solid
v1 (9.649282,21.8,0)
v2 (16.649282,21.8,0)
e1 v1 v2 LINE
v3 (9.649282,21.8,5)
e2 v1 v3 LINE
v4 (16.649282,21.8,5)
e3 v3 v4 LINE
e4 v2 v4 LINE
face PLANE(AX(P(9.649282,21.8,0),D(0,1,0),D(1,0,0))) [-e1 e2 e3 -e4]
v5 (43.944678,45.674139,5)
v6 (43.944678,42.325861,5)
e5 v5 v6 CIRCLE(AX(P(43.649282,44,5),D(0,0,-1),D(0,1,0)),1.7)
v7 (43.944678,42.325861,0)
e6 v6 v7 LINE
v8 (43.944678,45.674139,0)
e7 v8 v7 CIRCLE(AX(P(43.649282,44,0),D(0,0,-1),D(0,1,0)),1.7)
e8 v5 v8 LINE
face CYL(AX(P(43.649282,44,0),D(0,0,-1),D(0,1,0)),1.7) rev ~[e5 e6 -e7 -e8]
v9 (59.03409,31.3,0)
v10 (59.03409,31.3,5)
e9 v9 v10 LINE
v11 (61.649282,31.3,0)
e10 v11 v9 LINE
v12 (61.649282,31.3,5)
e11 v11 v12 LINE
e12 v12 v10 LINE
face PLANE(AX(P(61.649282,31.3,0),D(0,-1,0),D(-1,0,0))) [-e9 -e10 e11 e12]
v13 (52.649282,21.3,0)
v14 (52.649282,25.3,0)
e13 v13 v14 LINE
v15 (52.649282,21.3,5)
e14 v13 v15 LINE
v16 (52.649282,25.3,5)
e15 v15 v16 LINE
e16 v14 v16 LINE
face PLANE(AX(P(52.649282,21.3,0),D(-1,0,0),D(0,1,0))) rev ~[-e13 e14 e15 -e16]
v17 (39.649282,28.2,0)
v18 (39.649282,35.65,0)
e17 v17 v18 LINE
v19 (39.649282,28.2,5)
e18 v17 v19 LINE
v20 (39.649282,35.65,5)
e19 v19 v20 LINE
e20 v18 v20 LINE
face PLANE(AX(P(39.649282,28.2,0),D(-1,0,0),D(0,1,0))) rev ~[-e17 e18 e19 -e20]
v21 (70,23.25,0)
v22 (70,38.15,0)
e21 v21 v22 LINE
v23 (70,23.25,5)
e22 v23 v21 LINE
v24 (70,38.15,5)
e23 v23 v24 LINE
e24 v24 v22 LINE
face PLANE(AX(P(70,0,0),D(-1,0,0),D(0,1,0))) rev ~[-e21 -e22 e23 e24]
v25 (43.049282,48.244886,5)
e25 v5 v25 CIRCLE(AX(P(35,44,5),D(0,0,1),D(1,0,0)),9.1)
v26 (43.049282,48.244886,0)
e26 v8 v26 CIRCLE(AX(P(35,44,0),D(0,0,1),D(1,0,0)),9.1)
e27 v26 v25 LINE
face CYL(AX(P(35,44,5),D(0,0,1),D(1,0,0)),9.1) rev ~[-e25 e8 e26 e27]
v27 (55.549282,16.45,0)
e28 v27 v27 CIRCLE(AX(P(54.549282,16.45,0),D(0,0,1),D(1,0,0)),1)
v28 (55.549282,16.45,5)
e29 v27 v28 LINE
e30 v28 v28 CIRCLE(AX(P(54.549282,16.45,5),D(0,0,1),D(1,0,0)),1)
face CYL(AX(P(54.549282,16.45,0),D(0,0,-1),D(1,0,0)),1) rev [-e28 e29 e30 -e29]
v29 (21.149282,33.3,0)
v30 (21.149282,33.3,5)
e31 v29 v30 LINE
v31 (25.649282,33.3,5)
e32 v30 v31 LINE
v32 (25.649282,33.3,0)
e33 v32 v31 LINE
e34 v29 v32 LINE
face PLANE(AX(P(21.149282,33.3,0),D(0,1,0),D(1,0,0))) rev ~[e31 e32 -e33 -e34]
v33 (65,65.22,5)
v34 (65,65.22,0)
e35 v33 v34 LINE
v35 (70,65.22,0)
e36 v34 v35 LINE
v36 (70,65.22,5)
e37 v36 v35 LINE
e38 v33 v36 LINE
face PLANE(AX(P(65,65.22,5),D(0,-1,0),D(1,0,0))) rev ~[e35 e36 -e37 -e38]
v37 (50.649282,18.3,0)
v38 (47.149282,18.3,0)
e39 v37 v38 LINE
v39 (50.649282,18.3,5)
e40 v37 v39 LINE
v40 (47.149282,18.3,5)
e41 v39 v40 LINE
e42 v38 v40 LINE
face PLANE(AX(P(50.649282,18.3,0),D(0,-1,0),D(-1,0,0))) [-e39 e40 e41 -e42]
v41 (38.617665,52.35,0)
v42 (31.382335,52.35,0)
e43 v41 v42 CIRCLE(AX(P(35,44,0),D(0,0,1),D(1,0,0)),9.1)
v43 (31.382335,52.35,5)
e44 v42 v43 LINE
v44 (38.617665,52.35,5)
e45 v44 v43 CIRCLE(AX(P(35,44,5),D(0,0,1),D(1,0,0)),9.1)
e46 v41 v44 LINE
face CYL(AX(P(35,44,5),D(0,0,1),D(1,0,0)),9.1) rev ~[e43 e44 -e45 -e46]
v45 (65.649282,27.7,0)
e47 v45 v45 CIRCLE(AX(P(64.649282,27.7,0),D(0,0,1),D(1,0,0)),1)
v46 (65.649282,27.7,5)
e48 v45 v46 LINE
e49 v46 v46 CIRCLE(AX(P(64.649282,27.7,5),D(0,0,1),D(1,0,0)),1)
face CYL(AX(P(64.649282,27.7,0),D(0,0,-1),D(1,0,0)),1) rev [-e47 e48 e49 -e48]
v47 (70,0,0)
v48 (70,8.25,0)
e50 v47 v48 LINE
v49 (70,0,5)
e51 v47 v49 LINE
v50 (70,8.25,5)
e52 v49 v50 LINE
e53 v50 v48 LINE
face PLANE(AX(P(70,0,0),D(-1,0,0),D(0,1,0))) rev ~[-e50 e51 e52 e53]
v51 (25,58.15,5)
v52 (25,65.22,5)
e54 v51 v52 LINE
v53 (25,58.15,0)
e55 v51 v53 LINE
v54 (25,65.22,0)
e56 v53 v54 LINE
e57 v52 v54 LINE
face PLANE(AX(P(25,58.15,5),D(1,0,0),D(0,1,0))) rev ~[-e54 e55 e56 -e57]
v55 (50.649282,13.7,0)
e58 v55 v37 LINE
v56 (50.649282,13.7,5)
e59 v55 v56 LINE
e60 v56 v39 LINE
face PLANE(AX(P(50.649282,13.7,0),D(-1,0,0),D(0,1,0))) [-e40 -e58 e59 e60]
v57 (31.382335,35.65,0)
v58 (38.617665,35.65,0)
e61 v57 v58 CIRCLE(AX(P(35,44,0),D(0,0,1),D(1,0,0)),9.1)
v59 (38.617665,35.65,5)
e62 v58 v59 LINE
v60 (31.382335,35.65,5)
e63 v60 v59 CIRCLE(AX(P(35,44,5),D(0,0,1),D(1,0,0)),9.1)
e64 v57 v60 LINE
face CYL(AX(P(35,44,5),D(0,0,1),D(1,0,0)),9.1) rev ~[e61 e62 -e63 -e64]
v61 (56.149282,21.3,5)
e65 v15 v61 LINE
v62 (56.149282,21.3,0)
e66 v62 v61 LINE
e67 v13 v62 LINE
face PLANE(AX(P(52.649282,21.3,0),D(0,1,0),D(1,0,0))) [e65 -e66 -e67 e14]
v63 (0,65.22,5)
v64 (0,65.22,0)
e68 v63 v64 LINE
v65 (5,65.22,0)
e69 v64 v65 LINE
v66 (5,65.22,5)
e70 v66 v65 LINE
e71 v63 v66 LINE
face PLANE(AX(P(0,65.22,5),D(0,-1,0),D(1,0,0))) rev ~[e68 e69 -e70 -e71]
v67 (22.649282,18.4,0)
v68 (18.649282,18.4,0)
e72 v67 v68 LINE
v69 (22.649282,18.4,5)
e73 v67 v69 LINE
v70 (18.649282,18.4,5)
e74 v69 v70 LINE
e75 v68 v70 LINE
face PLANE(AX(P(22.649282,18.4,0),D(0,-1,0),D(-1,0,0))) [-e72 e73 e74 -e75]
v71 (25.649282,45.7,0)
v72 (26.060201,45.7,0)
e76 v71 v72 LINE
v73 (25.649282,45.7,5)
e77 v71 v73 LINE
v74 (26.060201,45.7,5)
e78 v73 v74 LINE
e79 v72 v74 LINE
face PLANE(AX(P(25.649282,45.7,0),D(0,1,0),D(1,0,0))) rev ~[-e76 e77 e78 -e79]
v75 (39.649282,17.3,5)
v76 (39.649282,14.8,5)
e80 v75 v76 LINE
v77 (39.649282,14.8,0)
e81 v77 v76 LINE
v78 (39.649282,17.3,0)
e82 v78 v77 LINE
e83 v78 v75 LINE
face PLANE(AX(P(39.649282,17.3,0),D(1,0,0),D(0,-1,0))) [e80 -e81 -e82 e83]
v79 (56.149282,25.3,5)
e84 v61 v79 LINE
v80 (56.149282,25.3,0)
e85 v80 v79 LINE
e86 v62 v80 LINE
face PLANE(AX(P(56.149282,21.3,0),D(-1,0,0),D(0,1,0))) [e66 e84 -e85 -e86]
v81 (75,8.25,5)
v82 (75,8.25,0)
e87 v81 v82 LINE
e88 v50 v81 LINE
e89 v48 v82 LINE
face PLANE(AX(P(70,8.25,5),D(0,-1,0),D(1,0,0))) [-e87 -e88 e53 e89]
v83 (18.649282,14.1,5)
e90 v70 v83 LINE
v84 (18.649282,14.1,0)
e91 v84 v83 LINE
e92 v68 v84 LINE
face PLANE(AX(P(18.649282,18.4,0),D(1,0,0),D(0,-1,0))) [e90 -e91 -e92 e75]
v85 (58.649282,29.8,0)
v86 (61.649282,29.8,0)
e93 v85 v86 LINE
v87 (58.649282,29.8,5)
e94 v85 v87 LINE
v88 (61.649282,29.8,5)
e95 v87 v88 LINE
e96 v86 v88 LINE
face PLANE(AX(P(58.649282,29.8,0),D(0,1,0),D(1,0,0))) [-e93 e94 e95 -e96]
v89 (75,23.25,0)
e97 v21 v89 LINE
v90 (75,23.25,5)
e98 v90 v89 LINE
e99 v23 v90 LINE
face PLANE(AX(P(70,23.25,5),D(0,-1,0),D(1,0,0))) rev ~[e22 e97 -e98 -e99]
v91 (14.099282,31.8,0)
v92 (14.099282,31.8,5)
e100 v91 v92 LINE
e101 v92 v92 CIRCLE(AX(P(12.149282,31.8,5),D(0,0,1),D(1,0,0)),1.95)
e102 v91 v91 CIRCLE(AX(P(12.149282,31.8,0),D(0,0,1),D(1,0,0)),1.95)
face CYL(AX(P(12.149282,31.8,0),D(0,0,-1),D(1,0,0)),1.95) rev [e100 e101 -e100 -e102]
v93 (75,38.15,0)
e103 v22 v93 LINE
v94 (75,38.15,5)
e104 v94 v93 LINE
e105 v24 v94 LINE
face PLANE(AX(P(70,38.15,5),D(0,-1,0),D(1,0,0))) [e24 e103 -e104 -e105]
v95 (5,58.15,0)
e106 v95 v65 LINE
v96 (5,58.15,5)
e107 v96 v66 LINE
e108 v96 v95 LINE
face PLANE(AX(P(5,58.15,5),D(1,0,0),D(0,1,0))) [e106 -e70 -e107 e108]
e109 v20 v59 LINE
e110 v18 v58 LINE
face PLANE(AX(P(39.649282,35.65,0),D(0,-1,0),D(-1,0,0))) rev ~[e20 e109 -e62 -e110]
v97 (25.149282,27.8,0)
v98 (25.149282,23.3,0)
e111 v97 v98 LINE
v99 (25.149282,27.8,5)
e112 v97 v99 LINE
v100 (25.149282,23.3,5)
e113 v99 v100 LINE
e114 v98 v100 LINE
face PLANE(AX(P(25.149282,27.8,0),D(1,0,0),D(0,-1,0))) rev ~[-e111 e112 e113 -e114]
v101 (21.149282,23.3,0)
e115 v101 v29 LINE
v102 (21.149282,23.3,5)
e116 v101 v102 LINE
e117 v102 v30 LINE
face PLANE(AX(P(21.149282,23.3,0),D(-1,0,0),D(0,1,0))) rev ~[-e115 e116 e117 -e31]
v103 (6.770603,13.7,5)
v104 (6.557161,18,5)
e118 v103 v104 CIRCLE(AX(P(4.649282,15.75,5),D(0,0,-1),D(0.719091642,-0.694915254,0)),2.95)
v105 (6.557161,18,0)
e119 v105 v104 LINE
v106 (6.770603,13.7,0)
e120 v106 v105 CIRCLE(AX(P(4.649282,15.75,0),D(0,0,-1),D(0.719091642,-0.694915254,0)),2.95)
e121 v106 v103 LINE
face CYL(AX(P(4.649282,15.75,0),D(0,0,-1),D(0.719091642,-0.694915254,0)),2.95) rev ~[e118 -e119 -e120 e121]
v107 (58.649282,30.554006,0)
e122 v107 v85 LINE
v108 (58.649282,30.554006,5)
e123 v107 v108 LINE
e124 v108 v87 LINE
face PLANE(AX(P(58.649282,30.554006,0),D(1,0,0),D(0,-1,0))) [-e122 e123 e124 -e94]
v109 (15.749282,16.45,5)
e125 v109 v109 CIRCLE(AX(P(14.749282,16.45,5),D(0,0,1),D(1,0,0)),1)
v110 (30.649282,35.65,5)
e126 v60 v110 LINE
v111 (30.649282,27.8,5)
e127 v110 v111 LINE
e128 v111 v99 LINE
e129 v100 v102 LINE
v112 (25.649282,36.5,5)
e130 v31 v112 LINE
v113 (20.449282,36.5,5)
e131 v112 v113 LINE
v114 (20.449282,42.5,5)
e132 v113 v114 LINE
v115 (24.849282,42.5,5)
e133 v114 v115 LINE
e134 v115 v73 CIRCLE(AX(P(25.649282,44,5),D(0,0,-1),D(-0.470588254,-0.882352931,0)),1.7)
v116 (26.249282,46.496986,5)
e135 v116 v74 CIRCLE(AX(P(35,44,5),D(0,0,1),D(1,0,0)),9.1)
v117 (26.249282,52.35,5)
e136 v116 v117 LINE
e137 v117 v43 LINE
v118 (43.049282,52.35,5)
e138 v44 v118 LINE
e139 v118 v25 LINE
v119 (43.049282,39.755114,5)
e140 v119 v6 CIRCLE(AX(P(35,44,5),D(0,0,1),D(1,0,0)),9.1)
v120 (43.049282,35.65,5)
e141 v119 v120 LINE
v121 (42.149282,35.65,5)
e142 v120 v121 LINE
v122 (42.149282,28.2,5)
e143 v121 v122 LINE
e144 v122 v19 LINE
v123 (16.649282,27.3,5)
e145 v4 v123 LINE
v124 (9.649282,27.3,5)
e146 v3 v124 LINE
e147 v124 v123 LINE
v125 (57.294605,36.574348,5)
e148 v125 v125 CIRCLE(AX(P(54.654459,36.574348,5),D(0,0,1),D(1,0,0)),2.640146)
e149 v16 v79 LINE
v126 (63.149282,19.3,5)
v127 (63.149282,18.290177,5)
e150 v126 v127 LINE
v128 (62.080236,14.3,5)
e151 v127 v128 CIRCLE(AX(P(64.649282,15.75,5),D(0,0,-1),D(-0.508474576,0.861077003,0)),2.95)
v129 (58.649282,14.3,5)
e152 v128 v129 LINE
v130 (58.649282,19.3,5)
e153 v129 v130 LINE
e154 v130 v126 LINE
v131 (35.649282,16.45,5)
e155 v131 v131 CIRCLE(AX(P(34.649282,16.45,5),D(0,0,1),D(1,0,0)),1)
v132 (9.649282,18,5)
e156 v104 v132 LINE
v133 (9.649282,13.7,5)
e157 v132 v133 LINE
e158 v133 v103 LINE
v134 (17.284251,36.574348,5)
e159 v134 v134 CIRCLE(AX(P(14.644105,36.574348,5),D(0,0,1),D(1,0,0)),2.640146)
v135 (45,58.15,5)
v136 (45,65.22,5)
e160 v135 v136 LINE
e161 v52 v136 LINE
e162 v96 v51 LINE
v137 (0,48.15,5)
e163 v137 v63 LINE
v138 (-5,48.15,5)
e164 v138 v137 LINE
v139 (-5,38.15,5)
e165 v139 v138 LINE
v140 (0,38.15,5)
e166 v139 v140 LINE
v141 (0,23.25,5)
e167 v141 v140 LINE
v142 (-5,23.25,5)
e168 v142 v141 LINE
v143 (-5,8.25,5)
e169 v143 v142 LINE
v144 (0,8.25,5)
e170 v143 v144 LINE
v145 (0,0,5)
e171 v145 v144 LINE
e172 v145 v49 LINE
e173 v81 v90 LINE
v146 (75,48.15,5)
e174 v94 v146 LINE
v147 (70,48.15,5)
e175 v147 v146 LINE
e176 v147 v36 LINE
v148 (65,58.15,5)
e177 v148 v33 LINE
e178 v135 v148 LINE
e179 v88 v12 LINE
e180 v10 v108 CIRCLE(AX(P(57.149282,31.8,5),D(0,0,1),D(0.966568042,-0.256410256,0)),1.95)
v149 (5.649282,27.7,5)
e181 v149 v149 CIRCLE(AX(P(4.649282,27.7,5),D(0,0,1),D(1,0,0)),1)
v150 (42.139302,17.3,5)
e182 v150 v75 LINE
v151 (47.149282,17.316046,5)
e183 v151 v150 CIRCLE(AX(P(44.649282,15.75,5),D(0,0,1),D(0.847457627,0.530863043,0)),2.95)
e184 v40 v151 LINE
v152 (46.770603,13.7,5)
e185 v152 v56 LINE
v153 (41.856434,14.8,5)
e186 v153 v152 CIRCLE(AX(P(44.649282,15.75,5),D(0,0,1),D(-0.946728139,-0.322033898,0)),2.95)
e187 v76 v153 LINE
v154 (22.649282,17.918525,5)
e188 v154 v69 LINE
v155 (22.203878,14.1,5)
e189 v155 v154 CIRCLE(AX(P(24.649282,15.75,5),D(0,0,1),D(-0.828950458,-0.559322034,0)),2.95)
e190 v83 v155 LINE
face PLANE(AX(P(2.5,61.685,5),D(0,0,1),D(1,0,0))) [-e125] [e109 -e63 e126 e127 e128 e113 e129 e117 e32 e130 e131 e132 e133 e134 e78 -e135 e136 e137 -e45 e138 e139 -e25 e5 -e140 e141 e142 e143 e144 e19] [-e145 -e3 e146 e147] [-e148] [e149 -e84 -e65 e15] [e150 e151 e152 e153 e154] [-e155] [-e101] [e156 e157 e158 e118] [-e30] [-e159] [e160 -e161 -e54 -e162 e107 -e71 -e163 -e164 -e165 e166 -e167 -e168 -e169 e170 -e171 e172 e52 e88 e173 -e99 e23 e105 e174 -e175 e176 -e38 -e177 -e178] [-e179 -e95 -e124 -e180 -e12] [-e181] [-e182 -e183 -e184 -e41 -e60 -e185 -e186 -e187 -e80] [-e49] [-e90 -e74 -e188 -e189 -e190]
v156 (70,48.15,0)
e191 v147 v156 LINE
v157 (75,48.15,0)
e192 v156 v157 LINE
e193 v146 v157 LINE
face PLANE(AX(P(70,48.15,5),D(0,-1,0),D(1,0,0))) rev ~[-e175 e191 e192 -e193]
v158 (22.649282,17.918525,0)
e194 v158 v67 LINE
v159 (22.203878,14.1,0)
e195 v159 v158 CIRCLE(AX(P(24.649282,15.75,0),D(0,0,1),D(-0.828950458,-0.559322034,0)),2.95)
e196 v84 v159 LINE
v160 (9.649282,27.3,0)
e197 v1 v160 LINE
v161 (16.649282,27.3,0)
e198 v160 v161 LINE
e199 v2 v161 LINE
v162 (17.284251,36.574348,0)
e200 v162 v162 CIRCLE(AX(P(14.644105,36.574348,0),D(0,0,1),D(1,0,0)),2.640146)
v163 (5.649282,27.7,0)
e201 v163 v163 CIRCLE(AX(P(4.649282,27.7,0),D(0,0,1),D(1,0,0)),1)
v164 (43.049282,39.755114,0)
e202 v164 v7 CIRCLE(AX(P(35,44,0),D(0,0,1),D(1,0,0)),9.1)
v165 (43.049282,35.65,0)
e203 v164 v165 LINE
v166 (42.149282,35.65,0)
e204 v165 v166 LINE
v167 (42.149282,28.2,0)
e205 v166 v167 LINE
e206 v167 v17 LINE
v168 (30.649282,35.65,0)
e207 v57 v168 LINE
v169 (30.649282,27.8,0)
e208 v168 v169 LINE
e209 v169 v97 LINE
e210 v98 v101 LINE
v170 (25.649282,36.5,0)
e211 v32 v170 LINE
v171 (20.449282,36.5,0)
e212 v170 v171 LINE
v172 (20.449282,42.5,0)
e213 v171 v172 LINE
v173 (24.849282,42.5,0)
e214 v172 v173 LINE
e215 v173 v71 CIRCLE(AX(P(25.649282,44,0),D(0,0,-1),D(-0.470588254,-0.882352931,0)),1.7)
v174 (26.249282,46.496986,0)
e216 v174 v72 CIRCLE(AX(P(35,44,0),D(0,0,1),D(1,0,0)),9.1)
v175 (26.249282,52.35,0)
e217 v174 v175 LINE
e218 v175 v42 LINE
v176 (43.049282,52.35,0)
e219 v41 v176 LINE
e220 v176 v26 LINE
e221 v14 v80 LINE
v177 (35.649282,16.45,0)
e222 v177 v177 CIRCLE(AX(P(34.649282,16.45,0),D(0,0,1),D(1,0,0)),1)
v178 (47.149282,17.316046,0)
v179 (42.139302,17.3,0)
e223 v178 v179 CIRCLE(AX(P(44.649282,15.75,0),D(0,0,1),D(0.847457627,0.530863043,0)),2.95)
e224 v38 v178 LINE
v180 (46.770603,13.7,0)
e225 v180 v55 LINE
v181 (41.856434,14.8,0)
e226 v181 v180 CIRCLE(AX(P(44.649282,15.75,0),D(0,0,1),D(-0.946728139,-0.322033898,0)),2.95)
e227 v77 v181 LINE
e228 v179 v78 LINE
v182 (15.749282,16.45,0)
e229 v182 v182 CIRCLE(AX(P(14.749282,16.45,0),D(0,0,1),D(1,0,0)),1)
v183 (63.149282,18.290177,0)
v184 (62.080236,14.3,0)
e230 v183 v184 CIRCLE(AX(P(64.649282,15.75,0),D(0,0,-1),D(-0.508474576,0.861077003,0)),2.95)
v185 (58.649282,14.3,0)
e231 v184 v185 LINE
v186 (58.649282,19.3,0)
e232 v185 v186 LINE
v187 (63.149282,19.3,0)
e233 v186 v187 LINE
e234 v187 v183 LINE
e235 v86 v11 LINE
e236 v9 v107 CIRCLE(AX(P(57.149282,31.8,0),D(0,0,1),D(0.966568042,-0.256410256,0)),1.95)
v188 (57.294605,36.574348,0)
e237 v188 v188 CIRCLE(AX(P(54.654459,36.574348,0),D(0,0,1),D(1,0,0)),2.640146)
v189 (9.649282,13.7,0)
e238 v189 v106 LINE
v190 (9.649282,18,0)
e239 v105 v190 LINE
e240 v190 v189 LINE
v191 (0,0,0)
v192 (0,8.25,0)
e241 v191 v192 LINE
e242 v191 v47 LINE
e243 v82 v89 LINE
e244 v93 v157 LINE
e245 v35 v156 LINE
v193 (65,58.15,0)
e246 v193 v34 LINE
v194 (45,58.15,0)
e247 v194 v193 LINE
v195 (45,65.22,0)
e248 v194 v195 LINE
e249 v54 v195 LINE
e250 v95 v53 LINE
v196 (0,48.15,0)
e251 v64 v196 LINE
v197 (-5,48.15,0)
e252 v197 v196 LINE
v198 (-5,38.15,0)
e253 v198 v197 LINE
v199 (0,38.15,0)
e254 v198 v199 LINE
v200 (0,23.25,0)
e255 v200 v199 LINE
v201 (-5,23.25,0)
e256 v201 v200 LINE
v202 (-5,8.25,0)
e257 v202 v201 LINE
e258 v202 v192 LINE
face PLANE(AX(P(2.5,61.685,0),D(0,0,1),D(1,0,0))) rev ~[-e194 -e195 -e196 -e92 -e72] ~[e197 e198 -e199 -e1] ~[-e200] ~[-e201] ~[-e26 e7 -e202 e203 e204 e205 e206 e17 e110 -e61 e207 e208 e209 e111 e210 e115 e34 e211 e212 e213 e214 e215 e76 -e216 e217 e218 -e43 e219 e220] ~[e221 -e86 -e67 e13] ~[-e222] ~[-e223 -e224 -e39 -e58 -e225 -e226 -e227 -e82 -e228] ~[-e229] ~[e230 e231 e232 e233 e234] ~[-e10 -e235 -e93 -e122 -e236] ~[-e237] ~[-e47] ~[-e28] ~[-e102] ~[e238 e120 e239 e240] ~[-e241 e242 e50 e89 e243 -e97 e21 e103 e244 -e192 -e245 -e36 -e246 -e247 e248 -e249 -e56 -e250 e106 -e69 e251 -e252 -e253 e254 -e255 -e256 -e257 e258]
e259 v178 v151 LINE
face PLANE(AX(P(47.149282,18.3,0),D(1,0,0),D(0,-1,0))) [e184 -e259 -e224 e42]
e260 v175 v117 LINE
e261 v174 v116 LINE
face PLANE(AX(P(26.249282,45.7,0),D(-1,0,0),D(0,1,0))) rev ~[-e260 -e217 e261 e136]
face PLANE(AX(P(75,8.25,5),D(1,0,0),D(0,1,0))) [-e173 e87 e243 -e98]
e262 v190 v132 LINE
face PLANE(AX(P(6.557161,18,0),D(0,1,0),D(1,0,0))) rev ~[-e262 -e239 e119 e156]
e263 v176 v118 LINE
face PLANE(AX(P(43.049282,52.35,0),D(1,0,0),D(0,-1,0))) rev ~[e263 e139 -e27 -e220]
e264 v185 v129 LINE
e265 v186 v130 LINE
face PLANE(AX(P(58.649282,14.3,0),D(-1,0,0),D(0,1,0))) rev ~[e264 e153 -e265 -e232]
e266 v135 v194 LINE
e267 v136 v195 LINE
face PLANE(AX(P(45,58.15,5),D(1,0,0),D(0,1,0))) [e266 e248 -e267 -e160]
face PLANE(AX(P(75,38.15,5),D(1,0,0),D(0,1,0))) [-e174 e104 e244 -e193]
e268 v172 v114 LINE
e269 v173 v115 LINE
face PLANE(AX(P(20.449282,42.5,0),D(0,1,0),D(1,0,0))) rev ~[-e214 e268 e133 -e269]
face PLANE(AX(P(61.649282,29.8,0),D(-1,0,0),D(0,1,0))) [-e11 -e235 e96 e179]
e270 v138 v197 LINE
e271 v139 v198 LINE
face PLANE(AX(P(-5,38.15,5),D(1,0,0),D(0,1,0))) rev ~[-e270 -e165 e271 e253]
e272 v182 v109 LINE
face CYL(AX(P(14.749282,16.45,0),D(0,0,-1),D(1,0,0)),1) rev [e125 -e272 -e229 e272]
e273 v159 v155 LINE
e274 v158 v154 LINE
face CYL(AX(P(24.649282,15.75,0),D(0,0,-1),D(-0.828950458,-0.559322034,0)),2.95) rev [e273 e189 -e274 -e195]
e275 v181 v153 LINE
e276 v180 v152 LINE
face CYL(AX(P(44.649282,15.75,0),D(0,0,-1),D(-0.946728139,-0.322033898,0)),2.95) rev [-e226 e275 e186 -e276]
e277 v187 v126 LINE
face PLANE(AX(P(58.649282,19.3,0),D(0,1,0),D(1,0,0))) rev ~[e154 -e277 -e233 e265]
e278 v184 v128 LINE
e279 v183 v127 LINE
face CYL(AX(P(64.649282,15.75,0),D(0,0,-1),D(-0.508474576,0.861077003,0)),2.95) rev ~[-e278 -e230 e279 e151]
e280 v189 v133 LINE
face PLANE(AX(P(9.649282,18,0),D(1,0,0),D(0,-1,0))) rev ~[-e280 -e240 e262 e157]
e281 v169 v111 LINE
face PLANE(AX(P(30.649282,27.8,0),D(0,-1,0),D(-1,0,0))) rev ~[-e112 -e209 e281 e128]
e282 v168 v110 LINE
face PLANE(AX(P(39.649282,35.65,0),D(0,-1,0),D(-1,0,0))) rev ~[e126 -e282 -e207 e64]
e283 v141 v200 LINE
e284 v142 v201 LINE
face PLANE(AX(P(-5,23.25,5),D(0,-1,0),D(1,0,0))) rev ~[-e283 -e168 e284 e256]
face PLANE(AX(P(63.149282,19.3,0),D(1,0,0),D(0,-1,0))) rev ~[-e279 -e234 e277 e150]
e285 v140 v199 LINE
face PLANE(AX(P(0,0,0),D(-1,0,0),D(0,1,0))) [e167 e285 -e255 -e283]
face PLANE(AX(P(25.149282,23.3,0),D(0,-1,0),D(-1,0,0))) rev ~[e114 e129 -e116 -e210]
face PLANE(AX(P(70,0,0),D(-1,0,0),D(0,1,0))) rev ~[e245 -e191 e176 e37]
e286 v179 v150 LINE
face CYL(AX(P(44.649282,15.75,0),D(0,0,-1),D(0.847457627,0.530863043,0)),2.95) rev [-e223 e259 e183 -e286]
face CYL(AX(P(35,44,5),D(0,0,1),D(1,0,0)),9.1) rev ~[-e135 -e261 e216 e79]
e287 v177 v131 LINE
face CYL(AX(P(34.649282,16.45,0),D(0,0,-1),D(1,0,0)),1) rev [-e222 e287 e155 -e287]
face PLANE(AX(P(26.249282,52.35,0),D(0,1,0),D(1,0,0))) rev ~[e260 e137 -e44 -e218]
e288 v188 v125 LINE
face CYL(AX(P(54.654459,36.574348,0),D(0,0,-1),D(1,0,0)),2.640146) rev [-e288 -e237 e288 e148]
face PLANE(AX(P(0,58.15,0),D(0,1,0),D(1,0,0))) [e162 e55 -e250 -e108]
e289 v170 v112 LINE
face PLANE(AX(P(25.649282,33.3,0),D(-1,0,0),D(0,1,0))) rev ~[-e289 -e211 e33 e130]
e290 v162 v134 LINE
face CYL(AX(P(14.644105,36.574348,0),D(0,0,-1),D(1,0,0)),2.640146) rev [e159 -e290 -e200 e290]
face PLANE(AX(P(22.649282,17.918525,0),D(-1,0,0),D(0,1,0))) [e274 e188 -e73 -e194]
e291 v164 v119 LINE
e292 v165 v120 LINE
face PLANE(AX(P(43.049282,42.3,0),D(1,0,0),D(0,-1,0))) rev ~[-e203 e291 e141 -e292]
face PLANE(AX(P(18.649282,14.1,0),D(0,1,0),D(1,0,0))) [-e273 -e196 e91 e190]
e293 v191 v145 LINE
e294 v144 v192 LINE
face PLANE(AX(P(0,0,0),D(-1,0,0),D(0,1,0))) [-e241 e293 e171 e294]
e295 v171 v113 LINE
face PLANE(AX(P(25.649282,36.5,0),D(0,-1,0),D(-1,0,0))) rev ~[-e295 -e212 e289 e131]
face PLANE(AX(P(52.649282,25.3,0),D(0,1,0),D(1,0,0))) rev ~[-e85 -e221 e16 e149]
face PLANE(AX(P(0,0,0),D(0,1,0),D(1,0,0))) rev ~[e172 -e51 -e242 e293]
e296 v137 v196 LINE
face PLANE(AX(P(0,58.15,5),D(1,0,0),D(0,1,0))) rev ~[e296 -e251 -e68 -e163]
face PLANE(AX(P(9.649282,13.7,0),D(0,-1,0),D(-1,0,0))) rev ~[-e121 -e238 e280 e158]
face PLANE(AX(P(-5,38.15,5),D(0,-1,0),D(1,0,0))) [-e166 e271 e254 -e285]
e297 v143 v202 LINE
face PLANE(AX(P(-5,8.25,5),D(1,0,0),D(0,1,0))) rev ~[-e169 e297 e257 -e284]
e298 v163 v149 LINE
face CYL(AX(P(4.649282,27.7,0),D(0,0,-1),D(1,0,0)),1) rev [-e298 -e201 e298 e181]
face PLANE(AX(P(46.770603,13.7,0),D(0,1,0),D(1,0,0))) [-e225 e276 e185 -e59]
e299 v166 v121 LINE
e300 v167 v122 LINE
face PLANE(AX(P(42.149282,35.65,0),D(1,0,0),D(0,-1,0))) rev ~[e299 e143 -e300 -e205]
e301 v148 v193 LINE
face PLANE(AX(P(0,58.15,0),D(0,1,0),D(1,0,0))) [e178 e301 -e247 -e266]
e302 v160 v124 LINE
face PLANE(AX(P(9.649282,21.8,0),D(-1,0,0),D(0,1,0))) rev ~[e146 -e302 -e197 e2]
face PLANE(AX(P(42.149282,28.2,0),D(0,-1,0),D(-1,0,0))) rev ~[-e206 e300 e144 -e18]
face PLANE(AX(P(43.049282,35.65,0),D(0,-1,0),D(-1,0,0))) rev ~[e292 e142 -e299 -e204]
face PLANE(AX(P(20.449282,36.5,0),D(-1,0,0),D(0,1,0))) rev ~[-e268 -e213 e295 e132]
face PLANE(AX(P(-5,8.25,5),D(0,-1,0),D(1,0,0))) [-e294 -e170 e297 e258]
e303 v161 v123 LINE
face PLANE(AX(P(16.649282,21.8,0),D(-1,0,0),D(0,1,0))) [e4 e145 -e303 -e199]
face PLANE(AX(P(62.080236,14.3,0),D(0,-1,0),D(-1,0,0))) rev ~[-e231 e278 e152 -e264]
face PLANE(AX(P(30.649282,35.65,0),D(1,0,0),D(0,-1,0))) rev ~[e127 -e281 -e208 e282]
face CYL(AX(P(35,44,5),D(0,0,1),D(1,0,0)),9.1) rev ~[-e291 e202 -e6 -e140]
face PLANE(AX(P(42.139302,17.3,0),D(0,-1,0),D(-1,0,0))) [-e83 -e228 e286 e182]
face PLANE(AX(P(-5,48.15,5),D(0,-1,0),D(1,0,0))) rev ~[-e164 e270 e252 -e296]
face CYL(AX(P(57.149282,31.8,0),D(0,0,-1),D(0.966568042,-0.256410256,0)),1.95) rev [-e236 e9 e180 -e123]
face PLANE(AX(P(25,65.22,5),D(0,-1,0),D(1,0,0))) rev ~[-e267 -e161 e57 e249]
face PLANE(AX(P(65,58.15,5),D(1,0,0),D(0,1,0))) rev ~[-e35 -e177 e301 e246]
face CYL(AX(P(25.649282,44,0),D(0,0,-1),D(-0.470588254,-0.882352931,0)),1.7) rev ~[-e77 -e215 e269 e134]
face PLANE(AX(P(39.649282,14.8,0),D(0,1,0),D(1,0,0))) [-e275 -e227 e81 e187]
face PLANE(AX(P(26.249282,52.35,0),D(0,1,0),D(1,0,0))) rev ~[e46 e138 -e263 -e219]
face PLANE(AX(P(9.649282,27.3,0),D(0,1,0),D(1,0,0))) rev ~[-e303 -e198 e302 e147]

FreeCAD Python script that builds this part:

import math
import FreeCAD as App
import Part
import Sketcher
Q = App.Units.Quantity


def add_polygon(sketch, points):
    """Adds a closed chain of lines whose ends are joined by coincident constraints."""
    first, n = sketch.GeometryCount, len(points)
    for a, b in zip(points, points[1:] + points[:1]):
        sketch.addGeometry(Part.LineSegment(App.Vector(*a, 0), App.Vector(*b, 0)), False)
    for i in range(n):
        sketch.addConstraint(Sketcher.Constraint("Coincident", first + i, 2, first + (i + 1) % n, 1))

doc = App.newDocument("Part")
params = doc.addObject("Spreadsheet::Sheet", "Params")
for row, (alias, value) in enumerate([
    ("sketch1_diameter", "2 mm"),
    ("sketch1_diameter2", "3.9 mm"),
    ("sketch1_radius", "1.7 mm"),
    ("sketch1_width", "70 mm"),
    ("sketch1_width2", "4 mm"),
    ("pad1_length", "5 mm"),
    ("sketch2_diameter", "18.2 mm"),
    ("pocket1_length", "5 mm"),
    ("sketch3_width", "20 mm"),
    ("sketch3_width2", "5 mm"),
    ("sketch3_height", "15 mm"),
    ("sketch3_height2", "10 mm"),
    ("sketch3_height3", "7.07 mm"),
    ("pad2_length", "5 mm"),
], start=1):
    params.set(f"A{row}", alias)
    params.set(f"B{row}", "=" + value)
    params.setAlias(f"B{row}", alias)

body = doc.addObject("PartDesign::Body", "Body")

# Sketch on XY plane
sketch1 = doc.addObject("Sketcher::SketchObject", "Sketch")
body.addObject(sketch1)
sketch1.AttachmentSupport = (doc.XY_Plane, [""])
sketch1.MapMode = "FlatFace"
add_polygon(sketch1, [(0, 58.15), (0, 0), (70, 0), (70, 58.15)])  # lines 0-3
sketch1.addGeometry(Part.ArcOfCircle(Part.Circle(App.Vector(4.65, 15.75, 0), App.Vector(0, 0, 1), 2.95), math.radians(50), math.radians(316)), False)  # 4
sketch1.addGeometry(Part.LineSegment(App.Vector(6.56, 18, 0), App.Vector(9.65, 18, 0)), False)  # 5
sketch1.addGeometry(Part.LineSegment(App.Vector(9.65, 18, 0), App.Vector(9.65, 13.7, 0)), False)  # 6
sketch1.addGeometry(Part.LineSegment(App.Vector(9.65, 13.7, 0), App.Vector(6.77, 13.7, 0)), False)  # 7
sketch1.addGeometry(Part.Circle(App.Vector(14.75, 16.45, 0), App.Vector(0, 0, 1), 1), False)  # 8
sketch1.addGeometry(Part.LineSegment(App.Vector(22.65, 18.4, 0), App.Vector(22.65, 17.92, 0)), False)  # 9
sketch1.addGeometry(Part.ArcOfCircle(Part.Circle(App.Vector(24.65, 15.75, 0), App.Vector(0, 0, 1), 2.95), math.radians(-146), math.radians(133)), False)  # 10
sketch1.addGeometry(Part.LineSegment(App.Vector(22.2, 14.1, 0), App.Vector(18.65, 14.1, 0)), False)  # 11
sketch1.addGeometry(Part.LineSegment(App.Vector(18.65, 14.1, 0), App.Vector(18.65, 18.4, 0)), False)  # 12
sketch1.addGeometry(Part.LineSegment(App.Vector(18.65, 18.4, 0), App.Vector(22.65, 18.4, 0)), False)  # 13
add_polygon(sketch1, [(16.65, 21.8), (9.65, 21.8), (9.65, 27.3), (16.65, 27.3)])  # lines 14-17
sketch1.addGeometry(Part.Circle(App.Vector(4.65, 27.7, 0), App.Vector(0, 0, 1), 1), False)  # 18
sketch1.addGeometry(Part.Circle(App.Vector(12.15, 31.8, 0), App.Vector(0, 0, 1), 1.95), False)  # 19
sketch1.addGeometry(Part.Circle(App.Vector(34.65, 16.45, 0), App.Vector(0, 0, 1), 1), False)  # 20
sketch1.addGeometry(Part.LineSegment(App.Vector(39.65, 17.3, 0), App.Vector(42.14, 17.3, 0)), False)  # 21
sketch1.addGeometry(Part.ArcOfCircle(Part.Circle(App.Vector(44.65, 15.75, 0), App.Vector(0, 0, 1), 2.95), math.radians(32), math.radians(148)), False)  # 22
sketch1.addGeometry(Part.LineSegment(App.Vector(47.15, 17.32, 0), App.Vector(47.15, 18.3, 0)), False)  # 23
sketch1.addGeometry(Part.LineSegment(App.Vector(47.15, 18.3, 0), App.Vector(50.65, 18.3, 0)), False)  # 24
sketch1.addGeometry(Part.LineSegment(App.Vector(50.65, 18.3, 0), App.Vector(50.65, 13.7, 0)), False)  # 25
sketch1.addGeometry(Part.LineSegment(App.Vector(50.65, 13.7, 0), App.Vector(46.77, 13.7, 0)), False)  # 26
sketch1.addGeometry(Part.ArcOfCircle(Part.Circle(App.Vector(44.65, 15.75, 0), App.Vector(0, 0, 1), 2.95), math.radians(-161), math.radians(-44)), False)  # 27
sketch1.addGeometry(Part.LineSegment(App.Vector(41.86, 14.8, 0), App.Vector(39.65, 14.8, 0)), False)  # 28
sketch1.addGeometry(Part.LineSegment(App.Vector(39.65, 14.8, 0), App.Vector(39.65, 17.3, 0)), False)  # 29
sketch1.addGeometry(Part.Circle(App.Vector(54.55, 16.45, 0), App.Vector(0, 0, 1), 1), False)  # 30
sketch1.addGeometry(Part.LineSegment(App.Vector(58.65, 19.3, 0), App.Vector(63.15, 19.3, 0)), False)  # 31
sketch1.addGeometry(Part.LineSegment(App.Vector(63.15, 19.3, 0), App.Vector(63.15, 18.29, 0)), False)  # 32
sketch1.addGeometry(Part.ArcOfCircle(Part.Circle(App.Vector(64.65, 15.75, 0), App.Vector(0, 0, 1), 2.95), math.radians(-151), math.radians(121)), False)  # 33
sketch1.addGeometry(Part.LineSegment(App.Vector(62.08, 14.3, 0), App.Vector(58.65, 14.3, 0)), False)  # 34
sketch1.addGeometry(Part.LineSegment(App.Vector(58.65, 14.3, 0), App.Vector(58.65, 19.3, 0)), False)  # 35
add_polygon(sketch1, [(56.15, 21.3), (52.65, 21.3), (52.65, 25.3), (56.15, 25.3)])  # lines 36-39
sketch1.addGeometry(Part.LineSegment(App.Vector(58.65, 29.8, 0), App.Vector(58.65, 30.55, 0)), False)  # 40
sketch1.addGeometry(Part.ArcOfCircle(Part.Circle(App.Vector(57.15, 31.8, 0), App.Vector(0, 0, 1), 1.95), math.radians(-15), math.radians(320)), False)  # 41
sketch1.addGeometry(Part.LineSegment(App.Vector(59.03, 31.3, 0), App.Vector(61.65, 31.3, 0)), False)  # 42
sketch1.addGeometry(Part.LineSegment(App.Vector(61.65, 31.3, 0), App.Vector(61.65, 29.8, 0)), False)  # 43
sketch1.addGeometry(Part.LineSegment(App.Vector(61.65, 29.8, 0), App.Vector(58.65, 29.8, 0)), False)  # 44
sketch1.addGeometry(Part.Circle(App.Vector(64.65, 27.7, 0), App.Vector(0, 0, 1), 1), False)  # 45
sketch1.addGeometry(Part.Circle(App.Vector(14.64, 36.57, 0), App.Vector(0, 0, 1), 2.64), False)  # 46
sketch1.addGeometry(Part.LineSegment(App.Vector(26.25, 45.7, 0), App.Vector(26.25, 52.35, 0)), False)  # 47
sketch1.addGeometry(Part.LineSegment(App.Vector(26.25, 52.35, 0), App.Vector(43.05, 52.35, 0)), False)  # 48
sketch1.addGeometry(Part.LineSegment(App.Vector(43.05, 52.35, 0), App.Vector(43.05, 45.7, 0)), False)  # 49
sketch1.addGeometry(Part.LineSegment(App.Vector(43.05, 45.7, 0), App.Vector(43.65, 45.7, 0)), False)  # 50
sketch1.addGeometry(Part.ArcOfCircle(Part.Circle(App.Vector(43.65, 44, 0), App.Vector(0, 0, 1), 1.7), math.radians(-90), math.radians(90)), False)  # 51
sketch1.addGeometry(Part.LineSegment(App.Vector(43.65, 42.3, 0), App.Vector(43.05, 42.3, 0)), False)  # 52
sketch1.addGeometry(Part.LineSegment(App.Vector(43.05, 42.3, 0), App.Vector(43.05, 35.65, 0)), False)  # 53
sketch1.addGeometry(Part.LineSegment(App.Vector(43.05, 35.65, 0), App.Vector(42.15, 35.65, 0)), False)  # 54
sketch1.addGeometry(Part.LineSegment(App.Vector(42.15, 35.65, 0), App.Vector(42.15, 28.2, 0)), False)  # 55
sketch1.addGeometry(Part.LineSegment(App.Vector(42.15, 28.2, 0), App.Vector(39.65, 28.2, 0)), False)  # 56
sketch1.addGeometry(Part.LineSegment(App.Vector(39.65, 28.2, 0), App.Vector(39.65, 35.65, 0)), False)  # 57
sketch1.addGeometry(Part.LineSegment(App.Vector(39.65, 35.65, 0), App.Vector(30.65, 35.65, 0)), False)  # 58
sketch1.addGeometry(Part.LineSegment(App.Vector(30.65, 35.65, 0), App.Vector(30.65, 27.8, 0)), False)  # 59
sketch1.addGeometry(Part.LineSegment(App.Vector(30.65, 27.8, 0), App.Vector(25.15, 27.8, 0)), False)  # 60
sketch1.addGeometry(Part.LineSegment(App.Vector(25.15, 27.8, 0), App.Vector(25.15, 23.3, 0)), False)  # 61
sketch1.addGeometry(Part.LineSegment(App.Vector(25.15, 23.3, 0), App.Vector(21.15, 23.3, 0)), False)  # 62
sketch1.addGeometry(Part.LineSegment(App.Vector(21.15, 23.3, 0), App.Vector(21.15, 33.3, 0)), False)  # 63
sketch1.addGeometry(Part.LineSegment(App.Vector(21.15, 33.3, 0), App.Vector(25.65, 33.3, 0)), False)  # 64
sketch1.addGeometry(Part.LineSegment(App.Vector(25.65, 33.3, 0), App.Vector(25.65, 36.5, 0)), False)  # 65
sketch1.addGeometry(Part.LineSegment(App.Vector(25.65, 36.5, 0), App.Vector(20.45, 36.5, 0)), False)  # 66
sketch1.addGeometry(Part.LineSegment(App.Vector(20.45, 36.5, 0), App.Vector(20.45, 42.5, 0)), False)  # 67
sketch1.addGeometry(Part.LineSegment(App.Vector(20.45, 42.5, 0), App.Vector(24.85, 42.5, 0)), False)  # 68
sketch1.addGeometry(Part.ArcOfCircle(Part.Circle(App.Vector(25.65, 44, 0), App.Vector(0, 0, 1), 1.7), math.radians(90), math.radians(242)), False)  # 69
sketch1.addGeometry(Part.LineSegment(App.Vector(25.65, 45.7, 0), App.Vector(26.25, 45.7, 0)), False)  # 70
sketch1.addGeometry(Part.Circle(App.Vector(54.65, 36.57, 0), App.Vector(0, 0, 1), 2.64), False)  # 71
sketch1.addConstraint([
    Sketcher.Constraint("Coincident", 4, 1, 5, 1),
    Sketcher.Constraint("Coincident", 5, 2, 6, 1),
    Sketcher.Constraint("Coincident", 6, 2, 7, 1),
    Sketcher.Constraint("Coincident", 7, 2, 4, 2),
    Sketcher.Constraint("Coincident", 9, 2, 10, 2),
    Sketcher.Constraint("Coincident", 10, 1, 11, 1),
    Sketcher.Constraint("Coincident", 11, 2, 12, 1),
    Sketcher.Constraint("Coincident", 12, 2, 13, 1),
    Sketcher.Constraint("Coincident", 13, 2, 9, 1),
    Sketcher.Constraint("Coincident", 21, 2, 22, 2),
    Sketcher.Constraint("Coincident", 22, 1, 23, 1),
    Sketcher.Constraint("Coincident", 23, 2, 24, 1),
    Sketcher.Constraint("Coincident", 24, 2, 25, 1),
    Sketcher.Constraint("Coincident", 25, 2, 26, 1),
    Sketcher.Constraint("Coincident", 26, 2, 27, 2),
    Sketcher.Constraint("Coincident", 27, 1, 28, 1),
    Sketcher.Constraint("Coincident", 28, 2, 29, 1),
    Sketcher.Constraint("Coincident", 29, 2, 21, 1),
    Sketcher.Constraint("Coincident", 31, 2, 32, 1),
    Sketcher.Constraint("Coincident", 32, 2, 33, 2),
    Sketcher.Constraint("Coincident", 33, 1, 34, 1),
    Sketcher.Constraint("Coincident", 34, 2, 35, 1),
    Sketcher.Constraint("Coincident", 35, 2, 31, 1),
    Sketcher.Constraint("Coincident", 40, 2, 41, 2),
    Sketcher.Constraint("Coincident", 41, 1, 42, 1),
    Sketcher.Constraint("Coincident", 42, 2, 43, 1),
    Sketcher.Constraint("Coincident", 43, 2, 44, 1),
    Sketcher.Constraint("Coincident", 44, 2, 40, 1),
    Sketcher.Constraint("Coincident", 47, 2, 48, 1),
    Sketcher.Constraint("Coincident", 48, 2, 49, 1),
    Sketcher.Constraint("Coincident", 49, 2, 50, 1),
    Sketcher.Constraint("Tangent", 50, 2, 51, 2),
    Sketcher.Constraint("Tangent", 51, 1, 52, 1),
    Sketcher.Constraint("Coincident", 52, 2, 53, 1),
    Sketcher.Constraint("Coincident", 53, 2, 54, 1),
    Sketcher.Constraint("Coincident", 54, 2, 55, 1),
    Sketcher.Constraint("Coincident", 55, 2, 56, 1),
    Sketcher.Constraint("Coincident", 56, 2, 57, 1),
    Sketcher.Constraint("Coincident", 57, 2, 58, 1),
    Sketcher.Constraint("Coincident", 58, 2, 59, 1),
    Sketcher.Constraint("Coincident", 59, 2, 60, 1),
    Sketcher.Constraint("Coincident", 60, 2, 61, 1),
    Sketcher.Constraint("Coincident", 61, 2, 62, 1),
    Sketcher.Constraint("Coincident", 62, 2, 63, 1),
    Sketcher.Constraint("Coincident", 63, 2, 64, 1),
    Sketcher.Constraint("Coincident", 64, 2, 65, 1),
    Sketcher.Constraint("Coincident", 65, 2, 66, 1),
    Sketcher.Constraint("Coincident", 66, 2, 67, 1),
    Sketcher.Constraint("Coincident", 67, 2, 68, 1),
    Sketcher.Constraint("Coincident", 68, 2, 69, 2),
    Sketcher.Constraint("Tangent", 69, 1, 70, 1),
    Sketcher.Constraint("Coincident", 70, 2, 47, 1),
    Sketcher.Constraint("Vertical", 0),
    Sketcher.Constraint("Horizontal", 1),
    Sketcher.Constraint("Vertical", 2),
    Sketcher.Constraint("Horizontal", 3),
    Sketcher.Constraint("Horizontal", 5),
    Sketcher.Constraint("Vertical", 6),
    Sketcher.Constraint("Horizontal", 7),
    Sketcher.Constraint("Vertical", 9),
    Sketcher.Constraint("Horizontal", 11),
    Sketcher.Constraint("Vertical", 12),
    Sketcher.Constraint("Horizontal", 13),
    Sketcher.Constraint("Horizontal", 14),
    Sketcher.Constraint("Vertical", 15),
    Sketcher.Constraint("Horizontal", 16),
    Sketcher.Constraint("Vertical", 17),
    Sketcher.Constraint("Horizontal", 21),
    Sketcher.Constraint("Vertical", 23),
    Sketcher.Constraint("Horizontal", 24),
    Sketcher.Constraint("Vertical", 25),
    Sketcher.Constraint("Horizontal", 26),
    Sketcher.Constraint("Horizontal", 28),
    Sketcher.Constraint("Vertical", 29),
    Sketcher.Constraint("Horizontal", 31),
    Sketcher.Constraint("Vertical", 32),
    Sketcher.Constraint("Horizontal", 34),
    Sketcher.Constraint("Vertical", 35),
    Sketcher.Constraint("Horizontal", 36),
    Sketcher.Constraint("Vertical", 37),
    Sketcher.Constraint("Horizontal", 38),
    Sketcher.Constraint("Vertical", 39),
    Sketcher.Constraint("Vertical", 40),
    Sketcher.Constraint("Horizontal", 42),
    Sketcher.Constraint("Vertical", 43),
    Sketcher.Constraint("Horizontal", 44),
    Sketcher.Constraint("Vertical", 47),
    Sketcher.Constraint("Horizontal", 48),
    Sketcher.Constraint("Vertical", 49),
    Sketcher.Constraint("Horizontal", 50),
    Sketcher.Constraint("Horizontal", 52),
    Sketcher.Constraint("Vertical", 53),
    Sketcher.Constraint("Horizontal", 54),
    Sketcher.Constraint("Vertical", 55),
    Sketcher.Constraint("Horizontal", 56),
    Sketcher.Constraint("Vertical", 57),
    Sketcher.Constraint("Horizontal", 58),
    Sketcher.Constraint("Vertical", 59),
    Sketcher.Constraint("Horizontal", 60),
    Sketcher.Constraint("Vertical", 61),
    Sketcher.Constraint("Horizontal", 62),
    Sketcher.Constraint("Vertical", 63),
    Sketcher.Constraint("Horizontal", 64),
    Sketcher.Constraint("Vertical", 65),
    Sketcher.Constraint("Horizontal", 66),
    Sketcher.Constraint("Vertical", 67),
    Sketcher.Constraint("Horizontal", 68),
    Sketcher.Constraint("Horizontal", 70),
    Sketcher.Constraint("Coincident", 0, 2, -1, 1),
    Sketcher.Constraint("Coincident", 27, 3, 22, 3),
    Sketcher.Constraint("Equal", 4, 10),
    Sketcher.Constraint("Equal", 8, 18),
    Sketcher.Constraint("Equal", 18, 20),
    Sketcher.Constraint("Equal", 10, 22),
    Sketcher.Constraint("Equal", 22, 27),
    Sketcher.Constraint("Equal", 20, 30),
    Sketcher.Constraint("Equal", 27, 33),
    Sketcher.Constraint("Equal", 19, 41),
    Sketcher.Constraint("Equal", 30, 45),
    Sketcher.Constraint("Equal", 51, 69),
    Sketcher.Constraint("Equal", 46, 71),
    Sketcher.Constraint("Horizontal", 4, 3, 10, 3),
    Sketcher.Constraint("Horizontal", 8, 3, 20, 3),
    Sketcher.Constraint("Horizontal", 10, 3, 22, 3),
    Sketcher.Constraint("Horizontal", 20, 3, 30, 3),
    Sketcher.Constraint("Horizontal", 27, 3, 33, 3),
    Sketcher.Constraint("Horizontal", 19, 3, 41, 3),
    Sketcher.Constraint("Horizontal", 18, 3, 45, 3),
    Sketcher.Constraint("Horizontal", 51, 3, 69, 3),
    Sketcher.Constraint("Horizontal", 46, 3, 71, 3),
    Sketcher.Constraint("Horizontal", 7, 2, 25, 2),
    Sketcher.Constraint("Horizontal", 54, 2, 57, 2),
    Sketcher.Constraint("Vertical", 4, 3, 18, 3),
    Sketcher.Constraint("Vertical", 33, 3, 45, 3),
    Sketcher.Constraint("Vertical", 6, 2, 14, 2),
    Sketcher.Constraint("Vertical", 35, 2, 40, 2),
    Sketcher.Constraint("Vertical", 49, 2, 52, 2),
    Sketcher.Constraint("Vertical", 29, 2, 56, 2),
    Sketcher.Constraint("Vertical", 69, 3, 64, 2),
    Sketcher.Constraint("Equal", 24, 36),
    Sketcher.Constraint("Equal", 13, 62),
    Sketcher.Constraint("Equal", 31, 64),
    Sketcher.Constraint("Equal", 52, 70),
    Sketcher.Constraint("Equal", 6, 12),
    Sketcher.Constraint("Equal", 60, 15),
    Sketcher.Constraint("Equal", 56, 29),
    Sketcher.Constraint("Equal", 62, 37),
    Sketcher.Constraint("Equal", 49, 53),
    Sketcher.Constraint("Equal", 64, 61),
    Sketcher.Constraint("Diameter", 8, Q("2 mm")),
    Sketcher.Constraint("Diameter", 19, Q("3.9 mm")),
    Sketcher.Constraint("Radius", 51, Q("1.7 mm")),
    Sketcher.Constraint("DistanceX", 1, 1, 1, 2, Q("70 mm")),
    Sketcher.Constraint("DistanceX", 13, 1, 13, 2, Q("4 mm")),
    Sketcher.Constraint("DistanceX", 14, 2, 14, 1, Q("7 mm")),
    Sketcher.Constraint("DistanceX", 44, 2, 44, 1, Q("3 mm")),
    Sketcher.Constraint("DistanceX", 58, 2, 58, 1, Q("9 mm")),
    Sketcher.Constraint("DistanceY", 35, 1, 35, 2, Q("5 mm")),
    Sketcher.Constraint("DistanceY", 63, 1, 63, 2, Q("10 mm")),
    Sketcher.Constraint("DistanceY", 67, 1, 67, 2, Q("6 mm")),
    Sketcher.Constraint("Radius", 4, Q("2.95 mm")),
    Sketcher.Constraint("DistanceX", 24, 1, 24, 2, Q("3.5 mm")),
    Sketcher.Constraint("DistanceX", 31, 1, 31, 2, Q("4.5 mm")),
    Sketcher.Constraint("DistanceX", 48, 1, 48, 2, Q("16.8 mm")),
    Sketcher.Constraint("DistanceX", 50, 1, 50, 2, Q("0.6 mm")),
    Sketcher.Constraint("DistanceX", 54, 2, 54, 1, Q("0.9 mm")),
    Sketcher.Constraint("DistanceX", 56, 2, 56, 1, Q("2.5 mm")),
    Sketcher.Constraint("DistanceX", 66, 2, 66, 1, Q("5.2 mm")),
    Sketcher.Constraint("DistanceX", 68, 1, 68, 2, Q("4.4 mm")),
    Sketcher.Constraint("DistanceY", 6, 2, 6, 1, Q("4.3 mm")),
    Sketcher.Constraint("DistanceY", 25, 2, 25, 1, Q("4.6 mm")),
    Sketcher.Constraint("DistanceY", 43, 2, 43, 1, Q("1.5 mm")),
    Sketcher.Constraint("DistanceY", 65, 1, 65, 2, Q("3.2 mm")),
    Sketcher.Constraint("DistanceY", -1, 1, 51, 3, Q("44 mm")),
    Sketcher.Constraint("DistanceY", -1, 1, 4, 1, Q("18 mm")),
    Sketcher.Constraint("DistanceY", 0, 2, 0, 1, Q("58.15 mm")),
    Sketcher.Constraint("DistanceY", 47, 1, 47, 2, Q("6.65 mm")),
    Sketcher.Constraint("DistanceY", 55, 2, 55, 1, Q("7.45 mm")),
    Sketcher.Constraint("DistanceY", -1, 1, 18, 3, Q("27.7 mm")),
    Sketcher.Constraint("DistanceY", -1, 1, 19, 3, Q("31.8 mm")),
    Sketcher.Constraint("DistanceY", -1, 1, 10, 1, Q("14.1 mm")),
    Sketcher.Constraint("DistanceY", -1, 1, 14, 2, Q("21.8 mm")),
    Sketcher.Constraint("DistanceY", -1, 1, 21, 2, Q("17.3 mm")),
    Sketcher.Constraint("DistanceY", -1, 1, 31, 2, Q("19.3 mm")),
    Sketcher.Constraint("DistanceY", -1, 1, 36, 2, Q("21.3 mm")),
    Sketcher.Constraint("DistanceY", -1, 1, 41, 1, Q("31.3 mm")),
    Sketcher.Constraint("DistanceY", -1, 1, 4, 3, Q("15.75 mm")),
    Sketcher.Constraint("DistanceY", -1, 1, 8, 3, Q("16.45 mm")),
    Sketcher.Constraint("Diameter", 46, Q("5.280292 mm")),
    Sketcher.Constraint("DistanceX", 5, 1, 5, 2, Q("3.092122 mm")),
    Sketcher.Constraint("DistanceX", 21, 1, 21, 2, Q("2.49002 mm")),
    Sketcher.Constraint("DistanceX", 26, 2, 26, 1, Q("3.87868 mm")),
    Sketcher.Constraint("DistanceX", 11, 2, 11, 1, Q("3.554596 mm")),
    Sketcher.Constraint("DistanceX", 34, 2, 34, 1, Q("3.430953 mm")),
    Sketcher.Constraint("DistanceX", 42, 1, 42, 2, Q("2.615192 mm")),
    Sketcher.Constraint("DistanceY", -1, 1, 46, 3, Q("36.574348 mm")),
    Sketcher.Constraint("DistanceX", -1, 1, 71, 3, Q("54.654459 mm")),
    Sketcher.Constraint("DistanceX", -1, 1, 4, 1, Q("6.557161 mm")),
    Sketcher.Constraint("DistanceX", -1, 1, 10, 1, Q("22.203878 mm")),
    Sketcher.Constraint("DistanceX", -1, 1, 41, 1, Q("59.03409 mm")),
    Sketcher.Constraint("DistanceX", -1, 1, 8, 3, Q("14.749282 mm")),
    Sketcher.Constraint("DistanceX", -1, 1, 19, 3, Q("12.149282 mm")),
    Sketcher.Constraint("DistanceX", -1, 1, 20, 3, Q("34.649282 mm")),
    Sketcher.Constraint("DistanceX", -1, 1, 22, 3, Q("44.649282 mm")),
    Sketcher.Constraint("DistanceX", -1, 1, 30, 3, Q("54.549282 mm")),
    Sketcher.Constraint("DistanceX", -1, 1, 46, 3, Q("14.644105 mm")),
    Sketcher.Constraint("DistanceX", -1, 1, 36, 2, Q("52.649282 mm")),
])
sketch1.setExpression("Constraints[161]", "Params.sketch1_diameter")
sketch1.setExpression("Constraints[162]", "Params.sketch1_diameter2")
sketch1.setExpression("Constraints[163]", "Params.sketch1_radius")
sketch1.setExpression("Constraints[164]", "Params.sketch1_width")
sketch1.setExpression("Constraints[165]", "Params.sketch1_width2")
pad1 = doc.addObject("PartDesign::Pad", "Pad")
body.addObject(pad1)
pad1.Profile = sketch1
pad1.setExpression("Length", "Params.pad1_length")

# Sketch on XY plane
sketch2 = doc.addObject("Sketcher::SketchObject", "Sketch001")
body.addObject(sketch2)
sketch2.AttachmentSupport = (doc.XY_Plane, [""])
sketch2.MapMode = "FlatFace"
sketch2.AttachmentOffset = App.Placement(App.Vector(0, 0, 5), App.Rotation())
sketch2.addGeometry(Part.Circle(App.Vector(35, 44, 0), App.Vector(0, 0, 1), 9), False)
sketch2.addConstraint([
    Sketcher.Constraint("Diameter", 0, Q("18.2 mm")),
    Sketcher.Constraint("DistanceX", -1, 1, 0, 3, Q("35 mm")),
    Sketcher.Constraint("DistanceY", -1, 1, 0, 3, Q("44 mm")),
])
sketch2.setExpression("Constraints[0]", "Params.sketch2_diameter")
pocket1 = doc.addObject("PartDesign::Pocket", "Pocket")
body.addObject(pocket1)
pocket1.Profile = sketch2
pocket1.setExpression("Length", "Params.pocket1_length")

# Sketch on XY plane
sketch3 = doc.addObject("Sketcher::SketchObject", "Sketch002")
body.addObject(sketch3)
sketch3.AttachmentSupport = (doc.XY_Plane, [""])
sketch3.MapMode = "FlatFace"
sketch3.AttachmentOffset = App.Placement(App.Vector(0, 0, 5), App.Rotation())
add_polygon(sketch3, [(25, 65), (25, 58), (45, 58), (45, 65)])  # lines 0-3
add_polygon(sketch3, [(0, 65), (0, 58), (5, 58), (5, 65)])  # lines 4-7
add_polygon(sketch3, [(-5, 23), (-5, 8), (0, 8), (0, 23)])  # lines 8-11
add_polygon(sketch3, [(-5, 48), (-5, 38), (0, 38), (0, 48)])  # lines 12-15
add_polygon(sketch3, [(70, 48), (70, 38), (75, 38), (75, 48)])  # lines 16-19
add_polygon(sketch3, [(70, 23), (70, 8), (75, 8), (75, 23)])  # lines 20-23
add_polygon(sketch3, [(65, 65), (65, 58), (70, 58), (70, 65)])  # lines 24-27
sketch3.addConstraint([
    Sketcher.Constraint("Vertical", 0),
    Sketcher.Constraint("Horizontal", 1),
    Sketcher.Constraint("Vertical", 2),
    Sketcher.Constraint("Horizontal", 3),
    Sketcher.Constraint("Vertical", 4),
    Sketcher.Constraint("Horizontal", 5),
    Sketcher.Constraint("Vertical", 6),
    Sketcher.Constraint("Horizontal", 7),
    Sketcher.Constraint("Vertical", 8),
    Sketcher.Constraint("Horizontal", 9),
    Sketcher.Constraint("Vertical", 10),
    Sketcher.Constraint("Horizontal", 11),
    Sketcher.Constraint("Vertical", 12),
    Sketcher.Constraint("Horizontal", 13),
    Sketcher.Constraint("Vertical", 14),
    Sketcher.Constraint("Horizontal", 15),
    Sketcher.Constraint("Vertical", 16),
    Sketcher.Constraint("Horizontal", 17),
    Sketcher.Constraint("Vertical", 18),
    Sketcher.Constraint("Horizontal", 19),
    Sketcher.Constraint("Vertical", 20),
    Sketcher.Constraint("Horizontal", 21),
    Sketcher.Constraint("Vertical", 22),
    Sketcher.Constraint("Horizontal", 23),
    Sketcher.Constraint("Vertical", 24),
    Sketcher.Constraint("Horizontal", 25),
    Sketcher.Constraint("Vertical", 26),
    Sketcher.Constraint("Horizontal", 27),
    Sketcher.Constraint("PointOnObject", 4, 2, -2),
    Sketcher.Constraint("PointOnObject", 9, 2, -2),
    Sketcher.Constraint("PointOnObject", 13, 2, -2),
    Sketcher.Constraint("Horizontal", 1, 2, 4, 2),
    Sketcher.Constraint("Horizontal", 3, 2, 6, 2),
    Sketcher.Constraint("Horizontal", 13, 2, 16, 2),
    Sketcher.Constraint("Horizontal", 15, 2, 18, 2),
    Sketcher.Constraint("Horizontal", 9, 2, 20, 2),
    Sketcher.Constraint("Horizontal", 11, 2, 22, 2),
    Sketcher.Constraint("Horizontal", 5, 2, 24, 2),
    Sketcher.Constraint("Horizontal", 7, 2, 26, 2),
    Sketcher.Constraint("Vertical", 11, 2, 12, 2),
    Sketcher.Constraint("Vertical", 19, 2, 20, 2),
    Sketcher.Constraint("Vertical", 18, 2, 21, 2),
    Sketcher.Constraint("Vertical", 23, 2, 25, 2),
    Sketcher.Constraint("Equal", 7, 9),
    Sketcher.Constraint("Equal", 15, 17),
    Sketcher.Constraint("Equal", 23, 25),
    Sketcher.Constraint("DistanceX", 1, 1, 1, 2, Q("20 mm")),
    Sketcher.Constraint("DistanceX", 5, 1, 5, 2, Q("5 mm")),
    Sketcher.Constraint("DistanceY", 8, 2, 8, 1, Q("15 mm")),
    Sketcher.Constraint("DistanceY", 12, 2, 12, 1, Q("10 mm")),
    Sketcher.Constraint("DistanceX", -1, 1, 0, 2, Q("25 mm")),
    Sketcher.Constraint("DistanceX", -1, 1, 16, 2, Q("70 mm")),
    Sketcher.Constraint("DistanceY", 12, 2, 4, 2, Q("20 mm")),
    Sketcher.Constraint("DistanceY", 0, 2, 0, 1, Q("7.07 mm")),
    Sketcher.Constraint("DistanceY", 8, 2, 4, 2, Q("49.9 mm")),
    Sketcher.Constraint("DistanceY", -1, 1, 0, 2, Q("58.15 mm")),
])
sketch3.setExpression("Constraints[74]", "Params.sketch3_width")
sketch3.setExpression("Constraints[75]", "Params.sketch3_width2")
sketch3.setExpression("Constraints[76]", "Params.sketch3_height")
sketch3.setExpression("Constraints[77]", "Params.sketch3_height2")
sketch3.setExpression("Constraints[81]", "Params.sketch3_height3")
pad2 = doc.addObject("PartDesign::Pad", "Pad001")
body.addObject(pad2)
pad2.Profile = sketch3
pad2.setExpression("Length", "Params.pad2_length")
pad2.Reversed = True

doc.recompute()
